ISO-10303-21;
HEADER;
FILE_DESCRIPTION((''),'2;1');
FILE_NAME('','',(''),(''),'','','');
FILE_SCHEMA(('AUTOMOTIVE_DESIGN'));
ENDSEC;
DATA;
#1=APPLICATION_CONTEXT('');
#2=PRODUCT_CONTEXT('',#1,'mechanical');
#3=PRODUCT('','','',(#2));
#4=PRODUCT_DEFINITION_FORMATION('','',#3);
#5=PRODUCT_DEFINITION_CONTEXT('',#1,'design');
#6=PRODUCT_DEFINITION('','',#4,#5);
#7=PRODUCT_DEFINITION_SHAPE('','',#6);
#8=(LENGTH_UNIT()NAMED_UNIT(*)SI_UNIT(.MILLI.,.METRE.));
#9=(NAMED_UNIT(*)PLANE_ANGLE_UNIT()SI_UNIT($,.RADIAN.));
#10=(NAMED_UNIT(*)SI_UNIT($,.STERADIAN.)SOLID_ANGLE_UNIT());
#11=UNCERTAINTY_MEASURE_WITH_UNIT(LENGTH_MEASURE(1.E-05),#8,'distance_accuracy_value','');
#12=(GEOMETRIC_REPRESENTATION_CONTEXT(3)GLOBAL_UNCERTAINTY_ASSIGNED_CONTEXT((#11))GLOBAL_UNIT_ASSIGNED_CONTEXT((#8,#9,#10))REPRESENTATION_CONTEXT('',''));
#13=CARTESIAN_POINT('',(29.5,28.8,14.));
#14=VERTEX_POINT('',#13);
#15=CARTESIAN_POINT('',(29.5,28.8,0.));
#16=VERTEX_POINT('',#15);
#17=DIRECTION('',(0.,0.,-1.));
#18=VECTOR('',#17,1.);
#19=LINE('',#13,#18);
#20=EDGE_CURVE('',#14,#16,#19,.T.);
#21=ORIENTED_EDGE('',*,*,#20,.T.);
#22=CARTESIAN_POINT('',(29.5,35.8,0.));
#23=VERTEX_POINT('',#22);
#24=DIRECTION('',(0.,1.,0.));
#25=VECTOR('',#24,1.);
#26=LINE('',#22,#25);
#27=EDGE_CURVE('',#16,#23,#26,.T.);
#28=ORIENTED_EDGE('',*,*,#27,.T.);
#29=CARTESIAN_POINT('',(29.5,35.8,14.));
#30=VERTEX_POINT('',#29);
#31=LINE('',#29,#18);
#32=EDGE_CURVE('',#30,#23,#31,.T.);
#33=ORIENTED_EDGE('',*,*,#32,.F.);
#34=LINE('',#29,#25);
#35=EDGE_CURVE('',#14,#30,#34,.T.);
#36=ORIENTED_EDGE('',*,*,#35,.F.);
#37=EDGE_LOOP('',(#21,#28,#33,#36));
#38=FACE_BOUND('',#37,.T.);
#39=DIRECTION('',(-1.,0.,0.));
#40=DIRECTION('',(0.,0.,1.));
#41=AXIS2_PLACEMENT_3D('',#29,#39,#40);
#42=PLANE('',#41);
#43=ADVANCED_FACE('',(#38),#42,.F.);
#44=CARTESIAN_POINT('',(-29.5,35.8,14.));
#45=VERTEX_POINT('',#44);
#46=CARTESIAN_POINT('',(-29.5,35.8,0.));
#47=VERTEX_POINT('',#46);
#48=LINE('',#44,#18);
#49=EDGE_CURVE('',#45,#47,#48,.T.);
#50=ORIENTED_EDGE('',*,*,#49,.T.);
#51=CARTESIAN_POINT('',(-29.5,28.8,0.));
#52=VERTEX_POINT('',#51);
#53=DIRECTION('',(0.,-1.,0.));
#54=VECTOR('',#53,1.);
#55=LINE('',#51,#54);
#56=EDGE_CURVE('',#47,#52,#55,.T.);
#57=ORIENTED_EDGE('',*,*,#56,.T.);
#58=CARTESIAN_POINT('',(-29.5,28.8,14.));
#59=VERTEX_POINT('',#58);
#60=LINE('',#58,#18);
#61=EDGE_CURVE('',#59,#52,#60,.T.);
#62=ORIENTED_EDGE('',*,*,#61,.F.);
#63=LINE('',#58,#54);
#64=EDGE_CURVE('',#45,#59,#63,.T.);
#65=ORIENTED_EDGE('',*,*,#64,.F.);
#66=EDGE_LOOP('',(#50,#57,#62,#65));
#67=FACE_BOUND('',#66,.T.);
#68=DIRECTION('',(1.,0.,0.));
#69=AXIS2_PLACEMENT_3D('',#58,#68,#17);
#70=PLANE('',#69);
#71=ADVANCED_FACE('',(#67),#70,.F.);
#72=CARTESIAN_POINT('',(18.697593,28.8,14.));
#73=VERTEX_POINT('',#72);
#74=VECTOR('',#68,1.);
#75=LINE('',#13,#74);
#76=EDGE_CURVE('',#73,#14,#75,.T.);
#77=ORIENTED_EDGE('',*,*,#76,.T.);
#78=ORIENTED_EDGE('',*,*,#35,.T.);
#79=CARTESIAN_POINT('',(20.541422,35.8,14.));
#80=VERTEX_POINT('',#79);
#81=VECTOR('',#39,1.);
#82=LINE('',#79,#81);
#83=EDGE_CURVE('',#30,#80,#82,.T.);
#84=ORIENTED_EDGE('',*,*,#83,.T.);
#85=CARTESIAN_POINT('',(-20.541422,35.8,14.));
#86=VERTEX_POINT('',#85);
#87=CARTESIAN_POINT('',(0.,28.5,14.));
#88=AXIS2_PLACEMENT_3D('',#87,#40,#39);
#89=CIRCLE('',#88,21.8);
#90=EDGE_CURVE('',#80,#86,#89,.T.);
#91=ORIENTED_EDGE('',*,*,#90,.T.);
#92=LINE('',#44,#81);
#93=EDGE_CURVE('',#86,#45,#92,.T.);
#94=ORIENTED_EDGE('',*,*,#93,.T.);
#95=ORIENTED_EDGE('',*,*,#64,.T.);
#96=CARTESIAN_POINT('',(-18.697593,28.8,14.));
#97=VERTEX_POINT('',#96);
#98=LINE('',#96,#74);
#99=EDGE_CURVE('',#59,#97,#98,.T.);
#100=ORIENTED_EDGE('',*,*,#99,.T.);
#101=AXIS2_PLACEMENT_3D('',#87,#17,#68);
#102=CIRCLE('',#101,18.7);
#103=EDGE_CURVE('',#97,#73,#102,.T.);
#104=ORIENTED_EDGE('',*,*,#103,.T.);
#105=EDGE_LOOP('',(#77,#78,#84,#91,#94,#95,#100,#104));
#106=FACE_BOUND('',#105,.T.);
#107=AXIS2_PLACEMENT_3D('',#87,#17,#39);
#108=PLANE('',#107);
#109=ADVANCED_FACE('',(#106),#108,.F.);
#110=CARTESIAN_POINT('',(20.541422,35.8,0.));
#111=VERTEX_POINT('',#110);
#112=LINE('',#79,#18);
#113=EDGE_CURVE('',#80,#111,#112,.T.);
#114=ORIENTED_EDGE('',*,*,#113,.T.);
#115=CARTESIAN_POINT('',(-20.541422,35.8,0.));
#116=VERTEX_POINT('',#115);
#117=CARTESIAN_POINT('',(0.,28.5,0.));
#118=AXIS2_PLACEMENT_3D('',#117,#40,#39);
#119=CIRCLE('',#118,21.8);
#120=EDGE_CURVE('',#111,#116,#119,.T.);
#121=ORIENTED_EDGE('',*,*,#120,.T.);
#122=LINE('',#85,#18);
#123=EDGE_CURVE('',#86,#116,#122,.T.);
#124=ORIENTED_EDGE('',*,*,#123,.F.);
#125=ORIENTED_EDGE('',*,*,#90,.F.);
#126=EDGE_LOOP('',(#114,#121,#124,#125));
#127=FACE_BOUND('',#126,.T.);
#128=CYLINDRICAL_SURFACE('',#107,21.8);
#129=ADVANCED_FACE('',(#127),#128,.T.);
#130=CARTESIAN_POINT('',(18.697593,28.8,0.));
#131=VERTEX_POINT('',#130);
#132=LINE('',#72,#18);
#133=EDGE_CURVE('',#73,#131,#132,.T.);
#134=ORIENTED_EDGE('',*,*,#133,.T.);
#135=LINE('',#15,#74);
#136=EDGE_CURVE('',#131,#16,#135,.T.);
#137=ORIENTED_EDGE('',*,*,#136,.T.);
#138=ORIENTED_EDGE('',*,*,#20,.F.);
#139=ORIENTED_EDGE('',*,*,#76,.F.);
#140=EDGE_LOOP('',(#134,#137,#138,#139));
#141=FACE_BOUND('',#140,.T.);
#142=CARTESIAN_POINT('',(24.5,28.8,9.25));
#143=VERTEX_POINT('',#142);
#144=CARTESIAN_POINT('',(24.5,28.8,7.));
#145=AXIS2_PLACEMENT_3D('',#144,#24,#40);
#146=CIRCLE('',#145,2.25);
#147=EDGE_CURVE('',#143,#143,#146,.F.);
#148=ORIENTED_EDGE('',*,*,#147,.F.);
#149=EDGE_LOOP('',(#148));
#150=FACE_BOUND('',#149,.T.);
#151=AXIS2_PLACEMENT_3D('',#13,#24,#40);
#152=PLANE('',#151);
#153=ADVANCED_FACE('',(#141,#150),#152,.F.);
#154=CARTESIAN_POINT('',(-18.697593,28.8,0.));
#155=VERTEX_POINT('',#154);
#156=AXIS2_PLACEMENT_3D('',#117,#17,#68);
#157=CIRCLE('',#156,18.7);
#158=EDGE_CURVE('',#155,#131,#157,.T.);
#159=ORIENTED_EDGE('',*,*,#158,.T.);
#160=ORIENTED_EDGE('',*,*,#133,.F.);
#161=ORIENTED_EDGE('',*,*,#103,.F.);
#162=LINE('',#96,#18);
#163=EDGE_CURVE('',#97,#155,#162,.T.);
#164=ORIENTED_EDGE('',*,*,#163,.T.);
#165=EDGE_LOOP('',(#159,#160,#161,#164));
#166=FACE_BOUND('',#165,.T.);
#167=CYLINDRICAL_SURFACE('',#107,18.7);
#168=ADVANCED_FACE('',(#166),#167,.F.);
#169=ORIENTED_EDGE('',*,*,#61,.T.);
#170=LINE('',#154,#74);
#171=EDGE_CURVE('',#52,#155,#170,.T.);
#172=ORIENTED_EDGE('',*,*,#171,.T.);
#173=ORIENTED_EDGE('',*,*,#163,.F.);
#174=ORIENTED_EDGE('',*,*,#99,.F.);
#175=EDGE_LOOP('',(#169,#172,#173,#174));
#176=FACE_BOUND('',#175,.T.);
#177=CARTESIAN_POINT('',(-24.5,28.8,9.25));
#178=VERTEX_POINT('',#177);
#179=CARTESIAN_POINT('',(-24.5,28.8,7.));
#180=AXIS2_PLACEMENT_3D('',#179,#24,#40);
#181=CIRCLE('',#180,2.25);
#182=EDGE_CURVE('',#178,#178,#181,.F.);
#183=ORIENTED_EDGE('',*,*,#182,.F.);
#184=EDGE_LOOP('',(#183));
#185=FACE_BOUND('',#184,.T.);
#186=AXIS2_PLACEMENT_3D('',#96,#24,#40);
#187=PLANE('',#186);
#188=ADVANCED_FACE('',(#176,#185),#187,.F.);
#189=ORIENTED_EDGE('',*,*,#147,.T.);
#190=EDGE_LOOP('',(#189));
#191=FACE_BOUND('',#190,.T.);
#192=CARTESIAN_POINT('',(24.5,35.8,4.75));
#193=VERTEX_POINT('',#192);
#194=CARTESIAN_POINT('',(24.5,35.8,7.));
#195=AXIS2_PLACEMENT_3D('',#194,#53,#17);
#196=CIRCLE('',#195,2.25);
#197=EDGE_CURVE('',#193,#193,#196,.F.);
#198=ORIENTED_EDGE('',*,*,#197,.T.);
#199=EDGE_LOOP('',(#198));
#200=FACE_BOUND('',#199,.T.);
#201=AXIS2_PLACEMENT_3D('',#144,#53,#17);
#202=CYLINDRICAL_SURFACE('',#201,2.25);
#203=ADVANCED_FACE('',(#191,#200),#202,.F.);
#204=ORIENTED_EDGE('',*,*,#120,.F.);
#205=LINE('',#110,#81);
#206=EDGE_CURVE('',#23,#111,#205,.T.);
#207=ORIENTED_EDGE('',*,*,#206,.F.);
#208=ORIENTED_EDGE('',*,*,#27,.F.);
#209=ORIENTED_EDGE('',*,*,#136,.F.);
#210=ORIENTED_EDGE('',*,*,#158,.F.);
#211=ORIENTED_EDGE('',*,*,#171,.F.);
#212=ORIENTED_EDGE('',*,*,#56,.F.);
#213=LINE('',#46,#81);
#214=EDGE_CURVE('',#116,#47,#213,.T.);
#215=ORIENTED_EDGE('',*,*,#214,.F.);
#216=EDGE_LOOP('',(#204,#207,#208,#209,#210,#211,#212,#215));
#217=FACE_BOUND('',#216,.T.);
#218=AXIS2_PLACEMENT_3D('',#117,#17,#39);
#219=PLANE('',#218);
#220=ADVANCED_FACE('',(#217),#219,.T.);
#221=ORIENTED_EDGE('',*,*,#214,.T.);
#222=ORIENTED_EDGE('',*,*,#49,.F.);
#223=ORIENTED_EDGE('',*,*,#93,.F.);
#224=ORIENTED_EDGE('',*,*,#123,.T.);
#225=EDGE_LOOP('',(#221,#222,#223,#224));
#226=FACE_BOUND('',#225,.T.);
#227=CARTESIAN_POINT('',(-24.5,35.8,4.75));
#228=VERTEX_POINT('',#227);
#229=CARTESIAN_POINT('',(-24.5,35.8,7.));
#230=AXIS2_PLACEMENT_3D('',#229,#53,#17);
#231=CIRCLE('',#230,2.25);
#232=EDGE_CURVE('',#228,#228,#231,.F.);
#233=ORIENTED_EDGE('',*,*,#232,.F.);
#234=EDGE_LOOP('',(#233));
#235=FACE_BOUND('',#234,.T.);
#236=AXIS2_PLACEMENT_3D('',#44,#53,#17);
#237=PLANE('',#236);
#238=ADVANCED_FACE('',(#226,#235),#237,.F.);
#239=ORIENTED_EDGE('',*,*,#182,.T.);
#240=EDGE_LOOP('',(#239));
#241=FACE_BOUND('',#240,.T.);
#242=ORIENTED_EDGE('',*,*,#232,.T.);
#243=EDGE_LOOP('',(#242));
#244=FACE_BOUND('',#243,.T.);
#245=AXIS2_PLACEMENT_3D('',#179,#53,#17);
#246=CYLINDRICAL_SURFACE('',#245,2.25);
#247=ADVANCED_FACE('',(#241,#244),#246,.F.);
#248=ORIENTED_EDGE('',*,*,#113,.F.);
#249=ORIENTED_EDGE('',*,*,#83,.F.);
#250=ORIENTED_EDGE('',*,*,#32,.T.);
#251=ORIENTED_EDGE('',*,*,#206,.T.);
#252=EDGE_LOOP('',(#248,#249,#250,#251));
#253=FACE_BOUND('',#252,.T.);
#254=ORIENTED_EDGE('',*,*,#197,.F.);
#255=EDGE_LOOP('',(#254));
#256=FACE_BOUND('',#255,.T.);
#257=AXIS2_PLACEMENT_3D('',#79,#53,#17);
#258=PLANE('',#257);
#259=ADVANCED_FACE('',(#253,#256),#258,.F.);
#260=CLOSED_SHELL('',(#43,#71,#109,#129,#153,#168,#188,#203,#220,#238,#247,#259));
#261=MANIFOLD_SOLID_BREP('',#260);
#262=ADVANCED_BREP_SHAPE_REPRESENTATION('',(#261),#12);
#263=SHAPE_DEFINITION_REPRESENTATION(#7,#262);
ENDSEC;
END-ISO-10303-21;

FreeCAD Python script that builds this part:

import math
import FreeCAD as App
import Part
import Sketcher
from FreeCAD import Vector

doc = App.newDocument("Part")
body = doc.addObject("PartDesign::Body", "Body")

# Sketch on XY plane
sketch1 = body.newObject("Sketcher::SketchObject", "Sketch")
sketch1.AttachmentSupport = (doc.getObject("XY_Plane"), [""])
sketch1.MapMode = "FlatFace"
sketch1.addGeometry([
    Part.LineSegment(Vector(29.5, 35.8, 0), Vector(20.541422, 35.8, 0)),  # 0
    Part.ArcOfCircle(Part.Circle(Vector(0, 28.5, 0), Vector(0, 0, 1), 21.8), math.radians(19.56417), math.radians(160.43583)),  # 1
    Part.LineSegment(Vector(-20.541422, 35.8, 0), Vector(-29.5, 35.8, 0)),  # 2
    Part.LineSegment(Vector(-29.5, 35.8, 0), Vector(-29.5, 28.8, 0)),  # 3
    Part.LineSegment(Vector(-29.5, 28.8, 0), Vector(-18.697593, 28.8, 0)),  # 4
    Part.ArcOfCircle(Part.Circle(Vector(0, 28.5, 0), Vector(0, 0, 1), 18.7), math.radians(0.919223), math.radians(179.080777)),  # 5
    Part.LineSegment(Vector(18.697593, 28.8, 0), Vector(29.5, 28.8, 0)),  # 6
    Part.LineSegment(Vector(29.5, 28.8, 0), Vector(29.5, 35.8, 0)),  # 7
], False)
sketch1.addConstraint([
    Sketcher.Constraint("Coincident", 0, 2, 1, 1),
    Sketcher.Constraint("Coincident", 1, 2, 2, 1),
    Sketcher.Constraint("Coincident", 2, 2, 3, 1),
    Sketcher.Constraint("Coincident", 3, 2, 4, 1),
    Sketcher.Constraint("Coincident", 4, 2, 5, 2),
    Sketcher.Constraint("Coincident", 5, 1, 6, 1),
    Sketcher.Constraint("Coincident", 6, 2, 7, 1),
    Sketcher.Constraint("Coincident", 7, 2, 0, 1),
    Sketcher.Constraint("Horizontal", 0),
    Sketcher.Constraint("Horizontal", 2),
    Sketcher.Constraint("Vertical", 3),
    Sketcher.Constraint("Horizontal", 4),
    Sketcher.Constraint("Horizontal", 6),
    Sketcher.Constraint("Vertical", 7),
    Sketcher.Constraint("Coincident", 5, 3, 1, 3),
    Sketcher.Constraint("Symmetric", 0, 2, 1, 2, -2),
    Sketcher.Constraint("Symmetric", 3, 2, 6, 2, -2),
    Sketcher.Constraint("Radius", 1, 21.8),
    Sketcher.Constraint("Radius", 5, 18.7),
    Sketcher.Constraint("DistanceY", 3, 2, 3, 1, 7.0),
    Sketcher.Constraint("DistanceY", -1, 1, 1, 3, 28.5),
    Sketcher.Constraint("DistanceY", -1, 1, 0, 2, 35.8),
    Sketcher.Constraint("DistanceX", 2, 2, -1, 1, 29.5),
])
pad1 = body.newObject("PartDesign::Pad", "Pad")
pad1.Profile = sketch1
pad1.Length = 14

# Sketch on XZ plane
sketch2 = body.newObject("Sketcher::SketchObject", "Sketch001")
sketch2.AttachmentSupport = (doc.getObject("XZ_Plane"), [""])
sketch2.MapMode = "FlatFace"
sketch2.addGeometry([
    Part.Circle(Vector(-24.5, 7, 0), Vector(0, 0, 1), 2.25),
    Part.Circle(Vector(24.5, 7, 0), Vector(0, 0, 1), 2.25),
], False)
sketch2.addConstraint([
    Sketcher.Constraint("Equal", 0, 1),
    Sketcher.Constraint("Symmetric", 0, 3, 1, 3, -2),
    Sketcher.Constraint("Diameter", 0, 4.5),
    Sketcher.Constraint("DistanceY", -1, 1, 0, 3, 7.0),
    Sketcher.Constraint("DistanceX", 0, 3, 1, 3, 49.0),
])
pocket1 = body.newObject("PartDesign::Pocket", "Pocket")
pocket1.Profile = sketch2
pocket1.Type = "ThroughAll"
pocket1.Midplane = True

doc.recompute()
